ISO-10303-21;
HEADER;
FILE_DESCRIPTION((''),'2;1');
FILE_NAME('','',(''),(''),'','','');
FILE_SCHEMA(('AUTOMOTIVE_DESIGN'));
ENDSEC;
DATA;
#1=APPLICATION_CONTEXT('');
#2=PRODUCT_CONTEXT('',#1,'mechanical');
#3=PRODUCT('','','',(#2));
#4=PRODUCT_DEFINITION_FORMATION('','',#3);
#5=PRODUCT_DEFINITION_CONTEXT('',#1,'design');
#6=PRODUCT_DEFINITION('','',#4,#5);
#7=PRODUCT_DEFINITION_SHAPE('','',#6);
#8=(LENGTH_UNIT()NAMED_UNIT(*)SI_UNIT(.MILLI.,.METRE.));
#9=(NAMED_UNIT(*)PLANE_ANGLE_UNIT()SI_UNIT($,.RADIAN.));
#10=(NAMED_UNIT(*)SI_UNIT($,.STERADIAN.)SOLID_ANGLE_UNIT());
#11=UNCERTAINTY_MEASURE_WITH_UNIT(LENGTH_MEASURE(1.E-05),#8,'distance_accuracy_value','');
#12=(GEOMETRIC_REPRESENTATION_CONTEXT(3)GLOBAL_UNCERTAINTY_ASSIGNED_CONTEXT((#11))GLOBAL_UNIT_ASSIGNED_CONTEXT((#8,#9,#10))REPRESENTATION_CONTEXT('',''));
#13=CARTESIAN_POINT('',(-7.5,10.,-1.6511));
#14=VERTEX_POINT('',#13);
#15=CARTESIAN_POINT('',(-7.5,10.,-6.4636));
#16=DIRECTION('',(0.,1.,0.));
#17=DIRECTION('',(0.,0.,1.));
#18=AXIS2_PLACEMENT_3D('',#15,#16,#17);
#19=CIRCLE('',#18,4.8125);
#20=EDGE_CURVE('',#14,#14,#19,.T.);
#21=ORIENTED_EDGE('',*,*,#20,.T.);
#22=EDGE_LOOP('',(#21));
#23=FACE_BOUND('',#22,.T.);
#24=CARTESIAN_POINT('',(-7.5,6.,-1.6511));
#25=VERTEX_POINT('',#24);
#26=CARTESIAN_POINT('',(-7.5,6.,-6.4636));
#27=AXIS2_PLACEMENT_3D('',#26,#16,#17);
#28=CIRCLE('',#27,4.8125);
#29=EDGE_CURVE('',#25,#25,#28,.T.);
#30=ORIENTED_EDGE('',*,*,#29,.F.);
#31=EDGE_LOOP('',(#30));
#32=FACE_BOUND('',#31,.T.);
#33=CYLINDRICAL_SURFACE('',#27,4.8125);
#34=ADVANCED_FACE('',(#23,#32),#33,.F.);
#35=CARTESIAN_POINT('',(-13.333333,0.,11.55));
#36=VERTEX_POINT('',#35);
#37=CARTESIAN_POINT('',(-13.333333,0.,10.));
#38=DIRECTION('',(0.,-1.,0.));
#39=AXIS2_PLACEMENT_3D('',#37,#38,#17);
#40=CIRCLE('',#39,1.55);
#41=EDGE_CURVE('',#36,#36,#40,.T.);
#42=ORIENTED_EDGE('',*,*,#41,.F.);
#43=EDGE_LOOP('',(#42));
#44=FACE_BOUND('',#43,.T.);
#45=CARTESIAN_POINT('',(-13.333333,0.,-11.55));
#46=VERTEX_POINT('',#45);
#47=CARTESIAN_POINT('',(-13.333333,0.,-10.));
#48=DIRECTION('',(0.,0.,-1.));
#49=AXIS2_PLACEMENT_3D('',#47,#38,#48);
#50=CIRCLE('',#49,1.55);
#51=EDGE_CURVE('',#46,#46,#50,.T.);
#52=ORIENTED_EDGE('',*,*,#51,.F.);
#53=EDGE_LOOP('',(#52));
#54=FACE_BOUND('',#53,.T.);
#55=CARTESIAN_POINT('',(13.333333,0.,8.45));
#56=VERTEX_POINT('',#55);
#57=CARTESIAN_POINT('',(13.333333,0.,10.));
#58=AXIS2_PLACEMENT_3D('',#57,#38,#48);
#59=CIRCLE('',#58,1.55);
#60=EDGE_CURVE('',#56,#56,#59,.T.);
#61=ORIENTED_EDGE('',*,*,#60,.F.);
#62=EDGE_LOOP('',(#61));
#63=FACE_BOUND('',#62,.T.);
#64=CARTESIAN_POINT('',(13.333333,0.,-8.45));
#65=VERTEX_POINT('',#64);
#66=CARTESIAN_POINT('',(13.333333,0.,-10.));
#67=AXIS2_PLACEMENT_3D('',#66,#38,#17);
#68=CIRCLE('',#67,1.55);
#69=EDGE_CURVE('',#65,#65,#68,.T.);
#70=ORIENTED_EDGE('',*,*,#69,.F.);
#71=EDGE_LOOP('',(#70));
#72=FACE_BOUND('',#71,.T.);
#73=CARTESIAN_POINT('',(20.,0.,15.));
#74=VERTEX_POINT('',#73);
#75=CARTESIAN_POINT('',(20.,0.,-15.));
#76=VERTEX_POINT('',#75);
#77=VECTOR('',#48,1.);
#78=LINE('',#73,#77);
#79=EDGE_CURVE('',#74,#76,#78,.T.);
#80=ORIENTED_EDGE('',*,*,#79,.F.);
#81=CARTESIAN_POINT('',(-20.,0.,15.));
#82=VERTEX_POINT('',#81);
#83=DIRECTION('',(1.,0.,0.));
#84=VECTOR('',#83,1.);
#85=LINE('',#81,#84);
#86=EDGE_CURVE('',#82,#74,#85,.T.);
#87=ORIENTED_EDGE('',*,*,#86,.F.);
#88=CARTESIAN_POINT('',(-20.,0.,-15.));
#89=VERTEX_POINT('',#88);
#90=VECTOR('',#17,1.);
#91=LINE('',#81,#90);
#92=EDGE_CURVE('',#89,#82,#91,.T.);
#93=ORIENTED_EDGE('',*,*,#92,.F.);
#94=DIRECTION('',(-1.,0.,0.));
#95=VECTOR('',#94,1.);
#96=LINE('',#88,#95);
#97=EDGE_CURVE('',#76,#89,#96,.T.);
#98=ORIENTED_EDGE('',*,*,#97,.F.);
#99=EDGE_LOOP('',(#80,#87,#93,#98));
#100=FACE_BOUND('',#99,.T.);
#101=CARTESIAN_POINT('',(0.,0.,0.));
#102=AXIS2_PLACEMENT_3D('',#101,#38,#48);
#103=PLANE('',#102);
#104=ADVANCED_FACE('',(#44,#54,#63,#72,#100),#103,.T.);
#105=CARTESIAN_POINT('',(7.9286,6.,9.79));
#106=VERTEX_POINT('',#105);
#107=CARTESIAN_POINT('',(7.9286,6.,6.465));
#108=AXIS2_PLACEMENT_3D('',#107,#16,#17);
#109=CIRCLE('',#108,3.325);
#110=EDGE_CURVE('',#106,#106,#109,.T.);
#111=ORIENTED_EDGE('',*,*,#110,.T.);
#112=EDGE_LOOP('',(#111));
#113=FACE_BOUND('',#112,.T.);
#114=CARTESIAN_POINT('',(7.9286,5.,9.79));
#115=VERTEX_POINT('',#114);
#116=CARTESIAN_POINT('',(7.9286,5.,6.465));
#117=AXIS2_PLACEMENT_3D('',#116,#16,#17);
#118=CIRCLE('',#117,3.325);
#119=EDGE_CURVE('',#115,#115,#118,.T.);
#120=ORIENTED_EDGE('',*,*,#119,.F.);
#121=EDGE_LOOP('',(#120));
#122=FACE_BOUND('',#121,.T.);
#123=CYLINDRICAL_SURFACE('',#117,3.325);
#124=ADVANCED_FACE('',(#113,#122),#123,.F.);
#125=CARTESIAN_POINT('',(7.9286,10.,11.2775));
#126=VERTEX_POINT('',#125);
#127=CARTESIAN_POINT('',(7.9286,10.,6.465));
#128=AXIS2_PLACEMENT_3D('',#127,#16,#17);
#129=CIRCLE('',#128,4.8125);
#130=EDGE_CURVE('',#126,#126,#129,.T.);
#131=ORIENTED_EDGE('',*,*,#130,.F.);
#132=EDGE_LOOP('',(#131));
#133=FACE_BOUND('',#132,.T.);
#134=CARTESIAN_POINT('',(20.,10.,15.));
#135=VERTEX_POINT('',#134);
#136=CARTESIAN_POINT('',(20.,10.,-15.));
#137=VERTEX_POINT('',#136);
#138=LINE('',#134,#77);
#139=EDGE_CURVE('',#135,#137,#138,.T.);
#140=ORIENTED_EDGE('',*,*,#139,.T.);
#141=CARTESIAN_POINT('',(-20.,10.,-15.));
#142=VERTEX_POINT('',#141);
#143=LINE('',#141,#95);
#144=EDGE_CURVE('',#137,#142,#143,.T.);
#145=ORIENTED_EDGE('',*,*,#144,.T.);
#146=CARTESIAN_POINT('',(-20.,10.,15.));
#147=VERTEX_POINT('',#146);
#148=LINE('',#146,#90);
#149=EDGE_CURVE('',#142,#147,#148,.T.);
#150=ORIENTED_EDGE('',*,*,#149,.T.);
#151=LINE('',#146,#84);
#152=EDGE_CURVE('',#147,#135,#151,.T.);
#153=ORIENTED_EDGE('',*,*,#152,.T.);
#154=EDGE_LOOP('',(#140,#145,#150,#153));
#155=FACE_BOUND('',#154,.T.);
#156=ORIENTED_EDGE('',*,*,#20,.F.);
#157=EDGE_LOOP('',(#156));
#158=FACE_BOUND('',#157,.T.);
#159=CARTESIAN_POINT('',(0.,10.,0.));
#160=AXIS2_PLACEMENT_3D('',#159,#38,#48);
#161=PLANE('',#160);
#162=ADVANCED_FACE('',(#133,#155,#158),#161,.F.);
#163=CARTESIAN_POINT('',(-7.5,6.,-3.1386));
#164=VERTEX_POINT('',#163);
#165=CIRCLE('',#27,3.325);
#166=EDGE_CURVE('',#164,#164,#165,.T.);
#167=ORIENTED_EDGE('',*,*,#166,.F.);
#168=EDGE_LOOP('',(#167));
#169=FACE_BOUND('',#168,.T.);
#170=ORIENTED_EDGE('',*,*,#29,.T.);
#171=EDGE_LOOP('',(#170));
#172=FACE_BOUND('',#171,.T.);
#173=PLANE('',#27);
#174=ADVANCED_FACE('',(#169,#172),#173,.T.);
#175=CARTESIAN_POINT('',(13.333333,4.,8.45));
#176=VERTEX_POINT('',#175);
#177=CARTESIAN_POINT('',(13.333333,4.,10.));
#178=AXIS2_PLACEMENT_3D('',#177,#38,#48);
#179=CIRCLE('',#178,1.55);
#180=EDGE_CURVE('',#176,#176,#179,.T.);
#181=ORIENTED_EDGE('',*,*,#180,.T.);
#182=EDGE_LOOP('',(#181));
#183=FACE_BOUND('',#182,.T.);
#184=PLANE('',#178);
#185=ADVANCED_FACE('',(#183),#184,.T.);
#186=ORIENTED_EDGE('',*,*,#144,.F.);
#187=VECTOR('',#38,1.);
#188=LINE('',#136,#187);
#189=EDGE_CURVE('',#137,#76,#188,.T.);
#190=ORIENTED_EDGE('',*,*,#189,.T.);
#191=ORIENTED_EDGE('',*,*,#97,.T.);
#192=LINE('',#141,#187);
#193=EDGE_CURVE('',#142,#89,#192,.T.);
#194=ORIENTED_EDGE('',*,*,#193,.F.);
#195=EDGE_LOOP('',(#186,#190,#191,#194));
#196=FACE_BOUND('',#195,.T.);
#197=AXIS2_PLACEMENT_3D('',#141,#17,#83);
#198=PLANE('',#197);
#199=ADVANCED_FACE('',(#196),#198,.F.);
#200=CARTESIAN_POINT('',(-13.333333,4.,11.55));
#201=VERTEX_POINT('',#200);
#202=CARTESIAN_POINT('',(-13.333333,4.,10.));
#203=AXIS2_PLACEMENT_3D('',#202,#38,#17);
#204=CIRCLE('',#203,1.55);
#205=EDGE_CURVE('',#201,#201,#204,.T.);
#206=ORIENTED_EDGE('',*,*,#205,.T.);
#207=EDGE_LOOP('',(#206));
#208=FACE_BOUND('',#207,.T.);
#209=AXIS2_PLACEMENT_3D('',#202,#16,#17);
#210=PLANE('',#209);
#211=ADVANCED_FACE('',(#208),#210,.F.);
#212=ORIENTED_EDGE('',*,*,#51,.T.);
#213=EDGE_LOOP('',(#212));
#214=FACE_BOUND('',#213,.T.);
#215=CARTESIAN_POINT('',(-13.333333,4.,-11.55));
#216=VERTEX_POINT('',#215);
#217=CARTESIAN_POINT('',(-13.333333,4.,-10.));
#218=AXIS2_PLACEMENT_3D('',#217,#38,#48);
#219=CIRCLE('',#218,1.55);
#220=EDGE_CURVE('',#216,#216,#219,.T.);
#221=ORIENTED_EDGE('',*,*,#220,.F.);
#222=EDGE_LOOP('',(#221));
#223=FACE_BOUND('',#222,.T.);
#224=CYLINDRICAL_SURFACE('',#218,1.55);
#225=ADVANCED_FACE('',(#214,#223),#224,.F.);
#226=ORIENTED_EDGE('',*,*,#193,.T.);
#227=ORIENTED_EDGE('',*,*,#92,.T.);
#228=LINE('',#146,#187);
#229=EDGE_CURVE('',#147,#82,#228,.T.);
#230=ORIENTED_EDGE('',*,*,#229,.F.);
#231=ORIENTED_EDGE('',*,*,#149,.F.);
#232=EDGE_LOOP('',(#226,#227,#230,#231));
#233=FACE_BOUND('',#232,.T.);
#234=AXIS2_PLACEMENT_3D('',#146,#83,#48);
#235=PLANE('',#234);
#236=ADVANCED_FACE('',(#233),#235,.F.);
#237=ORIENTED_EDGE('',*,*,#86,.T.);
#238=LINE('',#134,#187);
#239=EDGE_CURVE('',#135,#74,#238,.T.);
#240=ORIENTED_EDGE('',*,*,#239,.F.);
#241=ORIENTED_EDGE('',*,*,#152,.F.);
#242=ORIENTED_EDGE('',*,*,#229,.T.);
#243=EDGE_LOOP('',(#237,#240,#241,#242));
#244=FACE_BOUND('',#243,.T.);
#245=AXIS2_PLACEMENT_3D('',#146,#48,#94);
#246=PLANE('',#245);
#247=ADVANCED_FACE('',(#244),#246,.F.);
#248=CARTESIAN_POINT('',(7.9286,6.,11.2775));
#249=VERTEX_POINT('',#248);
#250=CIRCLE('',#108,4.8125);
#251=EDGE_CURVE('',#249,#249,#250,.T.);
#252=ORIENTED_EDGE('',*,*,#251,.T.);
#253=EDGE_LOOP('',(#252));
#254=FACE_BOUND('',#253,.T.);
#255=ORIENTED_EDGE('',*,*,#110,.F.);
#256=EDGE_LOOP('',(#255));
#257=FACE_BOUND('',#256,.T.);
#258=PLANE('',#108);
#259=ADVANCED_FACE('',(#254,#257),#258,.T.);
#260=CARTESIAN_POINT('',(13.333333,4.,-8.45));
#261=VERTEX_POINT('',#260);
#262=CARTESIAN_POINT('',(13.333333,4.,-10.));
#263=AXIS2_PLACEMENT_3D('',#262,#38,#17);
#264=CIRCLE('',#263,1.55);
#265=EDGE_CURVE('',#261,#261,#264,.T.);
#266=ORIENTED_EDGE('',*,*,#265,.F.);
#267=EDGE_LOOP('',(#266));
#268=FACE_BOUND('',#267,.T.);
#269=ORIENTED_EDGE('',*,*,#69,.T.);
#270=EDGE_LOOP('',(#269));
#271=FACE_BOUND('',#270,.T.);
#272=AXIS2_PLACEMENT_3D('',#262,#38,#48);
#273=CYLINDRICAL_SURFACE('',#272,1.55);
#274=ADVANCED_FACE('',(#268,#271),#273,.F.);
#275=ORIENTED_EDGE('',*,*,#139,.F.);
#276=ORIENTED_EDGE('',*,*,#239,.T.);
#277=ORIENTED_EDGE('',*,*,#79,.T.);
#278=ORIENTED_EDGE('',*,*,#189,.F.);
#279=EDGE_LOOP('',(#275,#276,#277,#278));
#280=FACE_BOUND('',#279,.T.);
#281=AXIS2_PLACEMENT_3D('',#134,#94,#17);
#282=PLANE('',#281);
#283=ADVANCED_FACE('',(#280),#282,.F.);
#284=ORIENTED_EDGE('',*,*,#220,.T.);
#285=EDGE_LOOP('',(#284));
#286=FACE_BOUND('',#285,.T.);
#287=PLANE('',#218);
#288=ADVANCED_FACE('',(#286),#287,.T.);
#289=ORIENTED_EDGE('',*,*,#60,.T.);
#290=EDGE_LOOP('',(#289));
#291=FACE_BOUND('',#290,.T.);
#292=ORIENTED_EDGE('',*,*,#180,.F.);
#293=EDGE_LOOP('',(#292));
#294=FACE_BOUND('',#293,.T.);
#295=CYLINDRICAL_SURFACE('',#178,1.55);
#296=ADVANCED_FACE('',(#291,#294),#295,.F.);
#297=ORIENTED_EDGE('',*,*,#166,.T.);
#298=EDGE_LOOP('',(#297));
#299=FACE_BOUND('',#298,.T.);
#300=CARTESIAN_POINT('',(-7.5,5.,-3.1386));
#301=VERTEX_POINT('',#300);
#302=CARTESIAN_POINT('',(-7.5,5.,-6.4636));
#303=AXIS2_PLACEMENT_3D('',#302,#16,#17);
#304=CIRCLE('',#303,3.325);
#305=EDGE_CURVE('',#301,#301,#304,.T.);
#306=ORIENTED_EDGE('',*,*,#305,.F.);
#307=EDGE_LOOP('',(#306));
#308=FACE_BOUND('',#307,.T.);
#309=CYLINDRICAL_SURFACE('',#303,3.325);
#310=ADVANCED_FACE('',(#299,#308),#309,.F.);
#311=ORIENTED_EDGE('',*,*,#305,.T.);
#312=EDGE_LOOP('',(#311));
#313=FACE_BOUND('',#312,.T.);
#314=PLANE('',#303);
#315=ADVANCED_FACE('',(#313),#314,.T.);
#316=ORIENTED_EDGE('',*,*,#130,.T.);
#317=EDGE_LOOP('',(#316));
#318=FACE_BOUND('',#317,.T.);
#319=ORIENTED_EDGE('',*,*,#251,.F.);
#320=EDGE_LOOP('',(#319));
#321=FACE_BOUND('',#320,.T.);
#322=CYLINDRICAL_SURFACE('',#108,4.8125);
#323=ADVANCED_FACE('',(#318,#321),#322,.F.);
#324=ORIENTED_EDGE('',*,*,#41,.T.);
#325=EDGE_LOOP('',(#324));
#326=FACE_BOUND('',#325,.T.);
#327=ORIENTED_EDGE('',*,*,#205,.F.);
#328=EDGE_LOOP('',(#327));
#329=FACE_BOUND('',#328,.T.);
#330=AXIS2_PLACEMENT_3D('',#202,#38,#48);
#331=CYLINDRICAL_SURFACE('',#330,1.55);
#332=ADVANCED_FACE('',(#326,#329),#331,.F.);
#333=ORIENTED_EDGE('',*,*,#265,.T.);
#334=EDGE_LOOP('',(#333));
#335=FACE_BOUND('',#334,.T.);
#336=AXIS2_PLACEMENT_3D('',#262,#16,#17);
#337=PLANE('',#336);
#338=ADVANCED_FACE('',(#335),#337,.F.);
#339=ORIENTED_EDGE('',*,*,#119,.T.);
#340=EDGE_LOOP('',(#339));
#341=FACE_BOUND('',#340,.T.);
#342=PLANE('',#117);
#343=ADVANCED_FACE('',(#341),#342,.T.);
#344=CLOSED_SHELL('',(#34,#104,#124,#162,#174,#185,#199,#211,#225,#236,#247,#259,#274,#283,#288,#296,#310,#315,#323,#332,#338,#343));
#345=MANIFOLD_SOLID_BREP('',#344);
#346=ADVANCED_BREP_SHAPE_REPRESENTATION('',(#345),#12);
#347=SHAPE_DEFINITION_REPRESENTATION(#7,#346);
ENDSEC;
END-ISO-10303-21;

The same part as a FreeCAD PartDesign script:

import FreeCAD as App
import Part
import Sketcher
from FreeCAD import Vector
Q = App.Units.Quantity


def add_polygon(sketch, points):
    """Adds a closed chain of lines whose ends are joined by coincident constraints."""
    first, n = sketch.GeometryCount, len(points)
    for a, b in zip(points, points[1:] + points[:1]):
        sketch.addGeometry(Part.LineSegment(App.Vector(*a, 0), App.Vector(*b, 0)), False)
    for i in range(n):
        sketch.addConstraint(Sketcher.Constraint("Coincident", first + i, 2, first + (i + 1) % n, 1))

doc = App.newDocument("Part")
params = doc.addObject("Spreadsheet::Sheet", "Params")
for row, (alias, value) in enumerate([
    ("sketch1_width", "40 mm"),
    ("sketch1_height", "30 mm"),
    ("pad1_length", "10 mm"),
    ("sketch2_diameter", "3.1 mm"),
    ("pocket1_length", "4 mm"),
    ("pocket2_length", "4 mm"),
    ("sketch4_diameter", "6.65 mm"),
    ("pocket3_length", "1 mm"),
], start=1):
    params.set(f"A{row}", alias)
    params.set(f"B{row}", "=" + value)
    params.setAlias(f"B{row}", alias)

body = doc.addObject("PartDesign::Body", "Body")

sketch1 = body.newObject("Sketcher::SketchObject", "Sketch")
sketch1.AttachmentSupport = (doc.getObject("XZ_Plane"), [""])
sketch1.MapMode = "FlatFace"
add_polygon(sketch1, [(-20, -15), (-20, 15), (20, 15), (20, -15)])
sketch1.addConstraint(Sketcher.Constraint("Vertical", 0))
sketch1.addConstraint(Sketcher.Constraint("Horizontal", 1))
sketch1.addConstraint(Sketcher.Constraint("Vertical", 2))
sketch1.addConstraint(Sketcher.Constraint("Horizontal", 3))
sketch1.addConstraint(Sketcher.Constraint("Symmetric", 0, 2, 2, 2, -1, 1))
sketch1.addConstraint(Sketcher.Constraint("DistanceX", 1, 1, 1, 2, Q("40 mm")))
sketch1.addConstraint(Sketcher.Constraint("DistanceY", 0, 1, 0, 2, Q("30 mm")))
sketch1.setExpression("Constraints[9]", "Params.sketch1_width")
sketch1.setExpression("Constraints[10]", "Params.sketch1_height")
pad1 = body.newObject("PartDesign::Pad", "Pad")
pad1.Profile = sketch1
pad1.setExpression("Length", "Params.pad1_length")
pad1.Reversed = True

sketch2 = body.newObject("Sketcher::SketchObject", "Sketch001")
sketch2.AttachmentSupport = (doc.getObject("XZ_Plane"), [""])
sketch2.MapMode = "FlatFace"
sketch2.addGeometry(Part.Circle(Vector(13.3, 10, 0), Vector(0, 0, 1), 1.6), False)
sketch2.addGeometry(Part.Circle(Vector(-13.3, 10, 0), Vector(0, 0, 1), 1.6), False)
sketch2.addGeometry(Part.Circle(Vector(13.3, -10, 0), Vector(0, 0, 1), 1.6), False)
sketch2.addGeometry(Part.Circle(Vector(-13.3, -10, 0), Vector(0, 0, 1), 1.6), False)
sketch2.addConstraint(Sketcher.Constraint("Equal", 0, 1))
sketch2.addConstraint(Sketcher.Constraint("Equal", 1, 2))
sketch2.addConstraint(Sketcher.Constraint("Equal", 2, 3))
sketch2.addConstraint(Sketcher.Constraint("Symmetric", 1, 3, 2, 3, -1, 1))
sketch2.addConstraint(Sketcher.Constraint("Symmetric", 0, 3, 3, 3, -1, 1))
sketch2.addConstraint(Sketcher.Constraint("Symmetric", 0, 3, 1, 3, -2))
sketch2.addConstraint(Sketcher.Constraint("Diameter", 0, Q("3.1 mm")))
sketch2.addConstraint(Sketcher.Constraint("DistanceY", -1, 1, 0, 3, Q("10 mm")))
sketch2.addConstraint(Sketcher.Constraint("DistanceX", -1, 1, 0, 3, Q("13.333333 mm")))
sketch2.setExpression("Constraints[6]", "Params.sketch2_diameter")
pocket1 = body.newObject("PartDesign::Pocket", "Pocket")
pocket1.Profile = sketch2
pocket1.setExpression("Length", "Params.pocket1_length")

sketch3 = body.newObject("Sketcher::SketchObject", "Sketch002")
sketch3.AttachmentSupport = (doc.getObject("XZ_Plane"), [""])
sketch3.MapMode = "FlatFace"
sketch3.AttachmentOffset = App.Placement(Vector(0, 0, -10), App.Rotation())
sketch3.addGeometry(Part.Circle(Vector(7.9, 6.5, 0), Vector(0, 0, 1), 4.8), False)
sketch3.addGeometry(Part.Circle(Vector(-7.5, -6.5, 0), Vector(0, 0, 1), 4.8), False)
sketch3.addConstraint(Sketcher.Constraint("Equal", 0, 1))
sketch3.addConstraint(Sketcher.Constraint("Diameter", 0, Q("9.625 mm")))
sketch3.addConstraint(Sketcher.Constraint("DistanceX", 1, 3, -1, 1, Q("7.5 mm")))
sketch3.addConstraint(Sketcher.Constraint("DistanceY", -1, 1, 0, 3, Q("6.465 mm")))
sketch3.addConstraint(Sketcher.Constraint("DistanceX", -1, 1, 0, 3, Q("7.9286 mm")))
sketch3.addConstraint(Sketcher.Constraint("DistanceY", 1, 3, -1, 1, Q("6.4636 mm")))
pocket2 = body.newObject("PartDesign::Pocket", "Pocket001")
pocket2.Profile = sketch3
pocket2.setExpression("Length", "Params.pocket2_length")
pocket2.Reversed = True

sketch4 = body.newObject("Sketcher::SketchObject", "Sketch003")
sketch4.AttachmentSupport = (doc.getObject("XZ_Plane"), [""])
sketch4.MapMode = "FlatFace"
sketch4.AttachmentOffset = App.Placement(Vector(0, 0, -6), App.Rotation())
sketch4.addGeometry(Part.Circle(Vector(7.9, 6.5, 0), Vector(0, 0, 1), 3.3), False)
sketch4.addGeometry(Part.Circle(Vector(-7.5, -6.5, 0), Vector(0, 0, 1), 3.3), False)
sketch4.addConstraint(Sketcher.Constraint("Equal", 0, 1))
sketch4.addConstraint(Sketcher.Constraint("Diameter", 0, Q("6.65 mm")))
sketch4.addConstraint(Sketcher.Constraint("DistanceX", 1, 3, -1, 1, Q("7.5 mm")))
sketch4.addConstraint(Sketcher.Constraint("DistanceY", -1, 1, 0, 3, Q("6.465 mm")))
sketch4.addConstraint(Sketcher.Constraint("DistanceX", -1, 1, 0, 3, Q("7.9286 mm")))
sketch4.addConstraint(Sketcher.Constraint("DistanceY", 1, 3, -1, 1, Q("6.4636 mm")))
sketch4.setExpression("Constraints[1]", "Params.sketch4_diameter")
pocket3 = body.newObject("PartDesign::Pocket", "Pocket002")
pocket3.Profile = sketch4
pocket3.setExpression("Length", "Params.pocket3_length")
pocket3.Reversed = True

doc.recompute()
